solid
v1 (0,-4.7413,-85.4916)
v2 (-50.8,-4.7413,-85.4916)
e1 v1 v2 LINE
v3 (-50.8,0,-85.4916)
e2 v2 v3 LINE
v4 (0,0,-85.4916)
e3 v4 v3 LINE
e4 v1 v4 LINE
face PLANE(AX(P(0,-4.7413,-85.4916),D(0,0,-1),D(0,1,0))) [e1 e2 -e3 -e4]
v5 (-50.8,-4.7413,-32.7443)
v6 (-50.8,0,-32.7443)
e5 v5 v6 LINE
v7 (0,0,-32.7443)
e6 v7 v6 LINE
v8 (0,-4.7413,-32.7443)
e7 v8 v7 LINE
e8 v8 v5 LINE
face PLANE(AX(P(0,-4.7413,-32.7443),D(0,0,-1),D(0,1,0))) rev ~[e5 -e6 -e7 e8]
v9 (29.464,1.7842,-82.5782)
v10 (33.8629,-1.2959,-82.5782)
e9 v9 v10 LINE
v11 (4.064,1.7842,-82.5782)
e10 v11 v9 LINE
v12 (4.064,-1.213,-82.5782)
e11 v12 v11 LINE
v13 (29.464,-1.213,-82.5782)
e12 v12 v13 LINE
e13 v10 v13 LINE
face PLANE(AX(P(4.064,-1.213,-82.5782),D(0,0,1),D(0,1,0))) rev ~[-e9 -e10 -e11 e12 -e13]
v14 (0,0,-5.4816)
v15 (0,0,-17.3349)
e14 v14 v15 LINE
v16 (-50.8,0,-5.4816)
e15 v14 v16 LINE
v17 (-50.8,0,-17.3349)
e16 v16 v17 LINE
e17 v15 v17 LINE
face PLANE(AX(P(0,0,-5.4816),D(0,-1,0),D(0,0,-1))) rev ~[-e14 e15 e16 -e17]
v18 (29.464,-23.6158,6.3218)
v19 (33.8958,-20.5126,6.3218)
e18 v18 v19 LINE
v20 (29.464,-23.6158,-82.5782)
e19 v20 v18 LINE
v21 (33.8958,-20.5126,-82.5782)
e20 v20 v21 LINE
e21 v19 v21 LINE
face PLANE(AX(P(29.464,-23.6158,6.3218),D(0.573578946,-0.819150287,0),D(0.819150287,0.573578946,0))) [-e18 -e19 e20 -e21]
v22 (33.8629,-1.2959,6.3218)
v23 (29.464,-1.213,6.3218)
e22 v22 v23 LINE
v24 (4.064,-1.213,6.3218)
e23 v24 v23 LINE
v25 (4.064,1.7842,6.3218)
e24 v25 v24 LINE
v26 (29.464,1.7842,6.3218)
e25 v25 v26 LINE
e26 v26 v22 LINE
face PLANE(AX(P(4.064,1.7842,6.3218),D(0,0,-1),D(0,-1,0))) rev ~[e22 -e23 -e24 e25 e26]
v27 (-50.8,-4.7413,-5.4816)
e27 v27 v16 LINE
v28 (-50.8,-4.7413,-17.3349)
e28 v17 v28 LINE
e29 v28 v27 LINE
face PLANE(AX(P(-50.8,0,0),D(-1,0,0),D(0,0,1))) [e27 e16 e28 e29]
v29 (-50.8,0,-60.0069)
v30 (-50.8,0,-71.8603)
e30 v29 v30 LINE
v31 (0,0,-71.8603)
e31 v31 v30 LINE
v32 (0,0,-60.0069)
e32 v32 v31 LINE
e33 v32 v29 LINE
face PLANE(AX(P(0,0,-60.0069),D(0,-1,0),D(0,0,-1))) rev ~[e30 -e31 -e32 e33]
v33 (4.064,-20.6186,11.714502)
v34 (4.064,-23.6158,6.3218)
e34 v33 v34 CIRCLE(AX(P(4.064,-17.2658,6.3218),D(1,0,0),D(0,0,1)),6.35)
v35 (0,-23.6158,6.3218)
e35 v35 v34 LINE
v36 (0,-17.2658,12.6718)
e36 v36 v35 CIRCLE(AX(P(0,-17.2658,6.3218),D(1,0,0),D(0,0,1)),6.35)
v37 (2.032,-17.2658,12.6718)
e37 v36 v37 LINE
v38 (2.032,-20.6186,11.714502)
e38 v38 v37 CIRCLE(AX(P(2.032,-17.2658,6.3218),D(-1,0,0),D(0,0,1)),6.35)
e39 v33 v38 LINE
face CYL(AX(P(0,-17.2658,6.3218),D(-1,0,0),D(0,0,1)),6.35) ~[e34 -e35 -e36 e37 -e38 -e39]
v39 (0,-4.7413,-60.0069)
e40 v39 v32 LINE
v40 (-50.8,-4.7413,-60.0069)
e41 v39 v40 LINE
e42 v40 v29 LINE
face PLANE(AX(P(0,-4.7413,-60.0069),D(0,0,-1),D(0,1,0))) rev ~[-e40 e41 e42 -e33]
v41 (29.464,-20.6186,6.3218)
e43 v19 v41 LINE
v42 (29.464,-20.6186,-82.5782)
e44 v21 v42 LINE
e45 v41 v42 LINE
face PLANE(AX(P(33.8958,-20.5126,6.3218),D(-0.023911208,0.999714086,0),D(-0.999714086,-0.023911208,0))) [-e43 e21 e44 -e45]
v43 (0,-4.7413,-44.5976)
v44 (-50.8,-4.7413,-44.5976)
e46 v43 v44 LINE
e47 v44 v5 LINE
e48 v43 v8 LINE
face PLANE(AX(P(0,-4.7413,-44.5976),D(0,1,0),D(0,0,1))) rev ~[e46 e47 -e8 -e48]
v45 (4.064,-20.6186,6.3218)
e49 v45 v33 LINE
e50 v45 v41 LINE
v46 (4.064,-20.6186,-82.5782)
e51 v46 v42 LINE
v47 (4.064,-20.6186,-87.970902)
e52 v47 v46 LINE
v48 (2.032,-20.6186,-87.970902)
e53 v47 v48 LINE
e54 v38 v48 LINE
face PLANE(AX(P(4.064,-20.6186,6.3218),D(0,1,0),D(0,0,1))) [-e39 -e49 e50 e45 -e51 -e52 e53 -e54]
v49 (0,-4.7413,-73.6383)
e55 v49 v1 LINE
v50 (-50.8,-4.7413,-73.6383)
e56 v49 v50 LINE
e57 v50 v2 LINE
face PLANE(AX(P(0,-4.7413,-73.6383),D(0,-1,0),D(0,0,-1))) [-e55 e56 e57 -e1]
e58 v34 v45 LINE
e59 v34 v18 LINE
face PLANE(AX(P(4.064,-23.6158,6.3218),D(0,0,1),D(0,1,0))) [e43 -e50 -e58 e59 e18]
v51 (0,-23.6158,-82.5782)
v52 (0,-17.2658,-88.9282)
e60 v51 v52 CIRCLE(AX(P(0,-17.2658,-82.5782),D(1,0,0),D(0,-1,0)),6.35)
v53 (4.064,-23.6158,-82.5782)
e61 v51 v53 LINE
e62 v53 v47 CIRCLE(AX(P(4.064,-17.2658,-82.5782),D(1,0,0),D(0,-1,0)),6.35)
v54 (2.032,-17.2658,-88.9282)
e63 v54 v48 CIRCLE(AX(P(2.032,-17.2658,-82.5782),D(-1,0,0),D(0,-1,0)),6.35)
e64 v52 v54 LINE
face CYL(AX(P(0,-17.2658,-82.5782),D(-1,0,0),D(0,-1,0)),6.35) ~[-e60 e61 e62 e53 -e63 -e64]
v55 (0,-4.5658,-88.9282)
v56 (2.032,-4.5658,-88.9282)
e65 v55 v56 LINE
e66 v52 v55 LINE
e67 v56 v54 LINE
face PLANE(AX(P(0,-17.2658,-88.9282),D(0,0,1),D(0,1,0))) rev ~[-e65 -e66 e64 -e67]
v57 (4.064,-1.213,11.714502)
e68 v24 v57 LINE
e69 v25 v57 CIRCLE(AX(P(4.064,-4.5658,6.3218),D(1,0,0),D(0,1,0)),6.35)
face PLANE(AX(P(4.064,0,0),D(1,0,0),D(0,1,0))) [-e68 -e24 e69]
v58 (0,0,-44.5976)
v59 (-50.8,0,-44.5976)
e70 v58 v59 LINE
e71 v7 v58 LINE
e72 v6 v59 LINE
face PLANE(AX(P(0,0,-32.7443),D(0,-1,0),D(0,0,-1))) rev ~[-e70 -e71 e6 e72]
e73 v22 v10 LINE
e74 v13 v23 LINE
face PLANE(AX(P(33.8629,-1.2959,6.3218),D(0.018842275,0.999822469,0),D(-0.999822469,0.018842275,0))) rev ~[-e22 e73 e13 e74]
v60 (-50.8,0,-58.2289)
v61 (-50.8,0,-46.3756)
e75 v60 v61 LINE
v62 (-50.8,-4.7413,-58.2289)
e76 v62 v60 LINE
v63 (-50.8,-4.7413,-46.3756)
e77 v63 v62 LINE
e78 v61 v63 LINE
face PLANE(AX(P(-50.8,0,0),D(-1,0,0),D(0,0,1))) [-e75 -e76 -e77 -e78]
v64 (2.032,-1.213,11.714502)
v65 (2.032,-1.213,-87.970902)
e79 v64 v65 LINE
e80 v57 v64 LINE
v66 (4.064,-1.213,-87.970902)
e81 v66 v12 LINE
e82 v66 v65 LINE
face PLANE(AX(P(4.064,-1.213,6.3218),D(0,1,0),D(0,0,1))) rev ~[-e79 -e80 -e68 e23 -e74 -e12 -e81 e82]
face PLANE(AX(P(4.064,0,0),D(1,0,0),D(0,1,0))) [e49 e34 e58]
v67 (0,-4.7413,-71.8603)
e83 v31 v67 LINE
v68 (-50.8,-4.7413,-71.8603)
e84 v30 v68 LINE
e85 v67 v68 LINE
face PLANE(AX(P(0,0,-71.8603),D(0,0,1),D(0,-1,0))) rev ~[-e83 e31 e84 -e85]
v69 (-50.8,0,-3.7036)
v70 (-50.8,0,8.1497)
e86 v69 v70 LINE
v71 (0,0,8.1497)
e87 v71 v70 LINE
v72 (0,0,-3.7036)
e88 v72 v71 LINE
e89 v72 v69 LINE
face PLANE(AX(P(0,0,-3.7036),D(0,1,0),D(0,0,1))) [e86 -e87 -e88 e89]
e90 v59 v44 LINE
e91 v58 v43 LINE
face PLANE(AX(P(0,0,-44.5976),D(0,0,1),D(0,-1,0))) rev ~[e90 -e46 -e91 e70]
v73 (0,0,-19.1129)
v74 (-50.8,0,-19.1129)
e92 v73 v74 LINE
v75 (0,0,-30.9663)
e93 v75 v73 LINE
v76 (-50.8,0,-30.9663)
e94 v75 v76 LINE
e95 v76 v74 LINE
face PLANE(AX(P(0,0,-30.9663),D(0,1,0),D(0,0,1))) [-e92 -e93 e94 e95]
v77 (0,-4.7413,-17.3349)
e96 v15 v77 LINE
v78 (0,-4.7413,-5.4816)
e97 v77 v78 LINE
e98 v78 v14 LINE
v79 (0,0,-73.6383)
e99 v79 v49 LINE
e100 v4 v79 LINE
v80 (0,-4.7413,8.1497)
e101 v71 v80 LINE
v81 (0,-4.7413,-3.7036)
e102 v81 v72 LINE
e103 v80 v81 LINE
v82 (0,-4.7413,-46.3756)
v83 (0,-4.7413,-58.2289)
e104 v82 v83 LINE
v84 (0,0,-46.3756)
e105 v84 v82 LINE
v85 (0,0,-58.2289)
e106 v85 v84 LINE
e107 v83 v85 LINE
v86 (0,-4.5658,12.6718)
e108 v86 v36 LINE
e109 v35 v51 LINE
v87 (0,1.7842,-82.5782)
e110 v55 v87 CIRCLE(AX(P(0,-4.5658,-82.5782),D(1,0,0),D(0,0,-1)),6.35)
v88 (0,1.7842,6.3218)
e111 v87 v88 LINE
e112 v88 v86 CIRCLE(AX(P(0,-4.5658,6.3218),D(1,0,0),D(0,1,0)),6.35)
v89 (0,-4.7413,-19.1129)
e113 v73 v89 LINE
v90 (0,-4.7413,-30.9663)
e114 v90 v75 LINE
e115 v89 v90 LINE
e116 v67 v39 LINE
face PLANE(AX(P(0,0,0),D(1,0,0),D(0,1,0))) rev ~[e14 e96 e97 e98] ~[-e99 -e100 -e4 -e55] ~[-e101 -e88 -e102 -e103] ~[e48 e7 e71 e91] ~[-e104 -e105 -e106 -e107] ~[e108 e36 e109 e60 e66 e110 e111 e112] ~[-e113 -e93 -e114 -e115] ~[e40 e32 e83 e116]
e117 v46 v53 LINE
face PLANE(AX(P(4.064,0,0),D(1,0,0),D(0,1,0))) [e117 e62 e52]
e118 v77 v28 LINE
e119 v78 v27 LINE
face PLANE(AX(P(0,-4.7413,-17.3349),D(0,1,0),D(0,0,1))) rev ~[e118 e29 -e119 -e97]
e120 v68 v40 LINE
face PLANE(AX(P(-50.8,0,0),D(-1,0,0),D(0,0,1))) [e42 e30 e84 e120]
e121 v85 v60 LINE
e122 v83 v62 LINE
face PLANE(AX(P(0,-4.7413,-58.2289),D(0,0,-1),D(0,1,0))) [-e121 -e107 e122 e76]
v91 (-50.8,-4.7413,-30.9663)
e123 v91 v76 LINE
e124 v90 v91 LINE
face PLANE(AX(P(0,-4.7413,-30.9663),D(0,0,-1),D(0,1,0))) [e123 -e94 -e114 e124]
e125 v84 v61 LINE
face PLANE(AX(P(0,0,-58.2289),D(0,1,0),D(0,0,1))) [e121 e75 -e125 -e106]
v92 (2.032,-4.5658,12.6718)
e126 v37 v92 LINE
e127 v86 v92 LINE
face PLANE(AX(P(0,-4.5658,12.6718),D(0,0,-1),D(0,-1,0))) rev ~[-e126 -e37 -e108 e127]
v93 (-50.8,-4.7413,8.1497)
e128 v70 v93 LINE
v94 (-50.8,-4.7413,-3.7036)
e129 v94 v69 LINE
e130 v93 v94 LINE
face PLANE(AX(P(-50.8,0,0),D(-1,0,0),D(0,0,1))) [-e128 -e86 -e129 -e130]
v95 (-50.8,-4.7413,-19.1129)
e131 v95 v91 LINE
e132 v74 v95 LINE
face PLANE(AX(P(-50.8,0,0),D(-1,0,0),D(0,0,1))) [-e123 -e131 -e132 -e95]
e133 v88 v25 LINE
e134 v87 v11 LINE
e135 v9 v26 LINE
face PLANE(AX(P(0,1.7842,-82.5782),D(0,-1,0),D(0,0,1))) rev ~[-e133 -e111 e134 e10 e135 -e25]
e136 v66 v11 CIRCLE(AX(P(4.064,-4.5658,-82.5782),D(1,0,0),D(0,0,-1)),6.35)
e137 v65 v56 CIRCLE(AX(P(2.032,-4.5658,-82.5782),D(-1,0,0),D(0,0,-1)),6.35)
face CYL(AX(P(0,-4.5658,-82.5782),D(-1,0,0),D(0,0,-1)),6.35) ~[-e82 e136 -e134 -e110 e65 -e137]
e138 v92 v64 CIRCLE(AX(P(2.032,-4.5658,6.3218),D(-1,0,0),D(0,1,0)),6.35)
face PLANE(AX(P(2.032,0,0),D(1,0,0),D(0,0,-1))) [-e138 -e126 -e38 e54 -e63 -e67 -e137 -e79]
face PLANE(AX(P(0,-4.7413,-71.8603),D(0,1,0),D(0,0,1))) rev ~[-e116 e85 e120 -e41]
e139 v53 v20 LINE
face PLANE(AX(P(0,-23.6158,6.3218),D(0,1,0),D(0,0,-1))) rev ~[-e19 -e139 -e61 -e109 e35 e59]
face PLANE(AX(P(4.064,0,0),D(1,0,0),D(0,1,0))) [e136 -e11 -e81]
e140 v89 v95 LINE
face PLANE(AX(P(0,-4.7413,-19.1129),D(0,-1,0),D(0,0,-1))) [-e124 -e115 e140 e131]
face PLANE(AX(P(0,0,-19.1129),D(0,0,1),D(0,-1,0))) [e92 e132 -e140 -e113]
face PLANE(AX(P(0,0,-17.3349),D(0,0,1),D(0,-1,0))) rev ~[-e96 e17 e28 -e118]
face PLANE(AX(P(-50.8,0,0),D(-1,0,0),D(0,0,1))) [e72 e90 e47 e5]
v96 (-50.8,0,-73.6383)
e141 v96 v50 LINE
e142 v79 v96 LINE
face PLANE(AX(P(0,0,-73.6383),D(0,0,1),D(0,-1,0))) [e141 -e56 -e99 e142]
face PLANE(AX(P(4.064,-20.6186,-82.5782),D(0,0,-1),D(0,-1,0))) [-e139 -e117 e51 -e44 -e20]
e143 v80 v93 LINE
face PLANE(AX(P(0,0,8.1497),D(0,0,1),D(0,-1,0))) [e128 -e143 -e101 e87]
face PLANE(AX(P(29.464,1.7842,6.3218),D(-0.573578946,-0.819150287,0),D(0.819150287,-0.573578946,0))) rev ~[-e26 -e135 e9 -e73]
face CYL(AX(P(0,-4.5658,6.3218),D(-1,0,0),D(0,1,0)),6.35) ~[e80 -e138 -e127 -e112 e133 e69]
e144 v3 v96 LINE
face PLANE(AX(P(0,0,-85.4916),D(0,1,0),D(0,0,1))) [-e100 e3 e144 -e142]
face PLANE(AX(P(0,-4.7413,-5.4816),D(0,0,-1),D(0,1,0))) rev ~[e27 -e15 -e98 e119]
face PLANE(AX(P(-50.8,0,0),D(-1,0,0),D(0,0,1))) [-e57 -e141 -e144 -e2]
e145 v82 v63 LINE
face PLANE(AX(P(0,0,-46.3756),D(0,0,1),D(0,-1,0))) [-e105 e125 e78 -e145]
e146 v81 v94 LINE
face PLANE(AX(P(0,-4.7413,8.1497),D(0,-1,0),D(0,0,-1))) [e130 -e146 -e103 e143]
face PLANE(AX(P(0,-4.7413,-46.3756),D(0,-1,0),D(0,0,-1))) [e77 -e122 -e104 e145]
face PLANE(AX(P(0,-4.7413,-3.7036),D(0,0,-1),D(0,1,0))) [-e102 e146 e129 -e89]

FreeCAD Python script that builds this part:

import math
import FreeCAD as App
import Part
import Sketcher
from FreeCAD import Vector
Q = App.Units.Quantity


def add_polygon(sketch, points):
    """Adds a closed chain of lines whose ends are joined by coincident constraints."""
    first, n = sketch.GeometryCount, len(points)
    for a, b in zip(points, points[1:] + points[:1]):
        sketch.addGeometry(Part.LineSegment(App.Vector(*a, 0), App.Vector(*b, 0)), False)
    for i in range(n):
        sketch.addConstraint(Sketcher.Constraint("Coincident", first + i, 2, first + (i + 1) % n, 1))

doc = App.newDocument("Part")
body = doc.addObject("PartDesign::Body", "Body")

sketch1 = body.newObject("Sketcher::SketchObject", "Sketch")
sketch1.AttachmentSupport = (doc.getObject("YZ_Plane"), [""])
sketch1.MapMode = "FlatFace"
sketch1.addGeometry([
    Part.ArcOfCircle(Part.Circle(Vector(-4.5658, 6.3218, 0), Vector(0, 0, 1), 6.35), math.radians(0), math.radians(90)),
    Part.LineSegment(Vector(-4.5658, 12.6718, 0), Vector(-17.2658, 12.6718, 0)),
    Part.ArcOfCircle(Part.Circle(Vector(-17.2658, 6.3218, 0), Vector(0, 0, 1), 6.35), math.radians(90), math.radians(180)),
    Part.LineSegment(Vector(-23.6158, 6.3218, 0), Vector(-23.6158, -82.5782, 0)),
    Part.ArcOfCircle(Part.Circle(Vector(-17.2658, -82.5782, 0), Vector(0, 0, 1), 6.35), math.radians(180), math.radians(270)),
    Part.LineSegment(Vector(-17.2658, -88.9282, 0), Vector(-4.5658, -88.9282, 0)),
    Part.ArcOfCircle(Part.Circle(Vector(-4.5658, -82.5782, 0), Vector(0, 0, 1), 6.35), math.radians(-90), math.radians(0)),
    Part.LineSegment(Vector(1.7842, -82.5782, 0), Vector(1.7842, 6.3218, 0)),
], False)
sketch1.addConstraint([
    Sketcher.Constraint("Tangent", 0, 2, 1, 1),
    Sketcher.Constraint("Tangent", 1, 2, 2, 1),
    Sketcher.Constraint("Tangent", 2, 2, 3, 1),
    Sketcher.Constraint("Tangent", 3, 2, 4, 1),
    Sketcher.Constraint("Tangent", 4, 2, 5, 1),
    Sketcher.Constraint("Tangent", 5, 2, 6, 1),
    Sketcher.Constraint("Tangent", 6, 2, 7, 1),
    Sketcher.Constraint("Tangent", 7, 2, 0, 1),
    Sketcher.Constraint("Horizontal", 1),
    Sketcher.Constraint("Vertical", 3),
    Sketcher.Constraint("Horizontal", 5),
    Sketcher.Constraint("Vertical", 7),
    Sketcher.Constraint("Equal", 0, 2),
    Sketcher.Constraint("Equal", 2, 4),
    Sketcher.Constraint("Equal", 4, 6),
    Sketcher.Constraint("Radius", 0, Q("0.25 in")),
    Sketcher.Constraint("DistanceX", 3, 2, 6, 2, Q("1 in")),
    Sketcher.Constraint("DistanceY", 3, 2, 3, 1, Q("3.5 in")),
    Sketcher.Constraint("DistanceY", -1, 1, 0, 3, Q("0.2489 in")),
    Sketcher.Constraint("DistanceX", 0, 3, -1, 1, Q("4.5658 mm")),
])
pad1 = body.newObject("PartDesign::Pad", "Pad")
pad1.Profile = sketch1
pad1.Length = Q("0.16 in")

sketch2 = body.newObject("Sketcher::SketchObject", "Sketch001")
sketch2.AttachmentSupport = (doc.getObject("YZ_Plane"), [""])
sketch2.MapMode = "FlatFace"
sketch2.AttachmentOffset = App.Placement(Vector(0, 0, 0.16 * 25.4), App.Rotation())
add_polygon(sketch2, [(-1.213, -82.5782), (1.7842, -82.5782), (1.7842, 6.3218), (-1.213, 6.3218)])
add_polygon(sketch2, [(-20.6186, -82.5782), (-20.6186, 6.3218), (-23.6158, 6.3218), (-23.6158, -82.5782)])
sketch2.addConstraint([
    Sketcher.Constraint("Horizontal", 0),
    Sketcher.Constraint("Vertical", 1),
    Sketcher.Constraint("Horizontal", 2),
    Sketcher.Constraint("Vertical", 3),
    Sketcher.Constraint("Vertical", 4),
    Sketcher.Constraint("Horizontal", 5),
    Sketcher.Constraint("Vertical", 6),
    Sketcher.Constraint("Horizontal", 7),
    Sketcher.Constraint("Horizontal", 2, 2, 4, 2),
    Sketcher.Constraint("Horizontal", 3, 2, 6, 2),
    Sketcher.Constraint("Equal", 2, 5),
    Sketcher.Constraint("DistanceY", 1, 1, 1, 2, Q("3.5 in")),
    Sketcher.Constraint("DistanceX", 4, 2, 2, 2, Q("0.764 in")),
    Sketcher.Constraint("DistanceX", 5, 2, 1, 2, Q("1 in")),
    Sketcher.Constraint("DistanceY", 0, 2, -1, 1, Q("3.2511 in")),
    Sketcher.Constraint("DistanceX", -1, 1, 0, 2, Q("1.7842 mm")),
])
pad2 = body.newObject("PartDesign::Pad", "Pad001")
pad2.Profile = sketch2
pad2.Length = Q("1 in")

sketch3 = body.newObject("Sketcher::SketchObject", "Sketch002")
sketch3.AttachmentSupport = (doc.getObject("YZ_Plane"), [""])
sketch3.MapMode = "FlatFace"
add_polygon(sketch3, [(-4.7413, -5.4816), (0, -5.4816), (0, -17.3349), (-4.7413, -17.3349)])
add_polygon(sketch3, [(0, -19.1129), (0, -30.9663), (-4.7413, -30.9663), (-4.7413, -19.1129)])
add_polygon(sketch3, [(-4.7413, -32.7443), (0, -32.7443), (0, -44.5976), (-4.7413, -44.5976)])
add_polygon(sketch3, [(0, -58.2289), (-4.7413, -58.2289), (-4.7413, -46.3756), (0, -46.3756)])
add_polygon(sketch3, [(-4.7413, -60.0069), (0, -60.0069), (0, -71.8603), (-4.7413, -71.8603)])
add_polygon(sketch3, [(0, -73.6383), (0, -85.4916), (-4.7413, -85.4916), (-4.7413, -73.6383)])
add_polygon(sketch3, [(0, 8.1497), (0, -3.7036), (-4.7413, -3.7036), (-4.7413, 8.1497)])
sketch3.addConstraint([
    Sketcher.Constraint("Horizontal", 0),
    Sketcher.Constraint("Vertical", 1),
    Sketcher.Constraint("Horizontal", 2),
    Sketcher.Constraint("Vertical", 3),
    Sketcher.Constraint("Vertical", 4),
    Sketcher.Constraint("Horizontal", 5),
    Sketcher.Constraint("Vertical", 6),
    Sketcher.Constraint("Horizontal", 7),
    Sketcher.Constraint("Horizontal", 8),
    Sketcher.Constraint("Vertical", 9),
    Sketcher.Constraint("Horizontal", 10),
    Sketcher.Constraint("Vertical", 11),
    Sketcher.Constraint("Horizontal", 12),
    Sketcher.Constraint("Vertical", 13),
    Sketcher.Constraint("Horizontal", 14),
    Sketcher.Constraint("Vertical", 15),
    Sketcher.Constraint("Horizontal", 16),
    Sketcher.Constraint("Vertical", 17),
    Sketcher.Constraint("Horizontal", 18),
    Sketcher.Constraint("Vertical", 19),
    Sketcher.Constraint("Vertical", 20),
    Sketcher.Constraint("Horizontal", 21),
    Sketcher.Constraint("Vertical", 22),
    Sketcher.Constraint("Horizontal", 23),
    Sketcher.Constraint("Vertical", 24),
    Sketcher.Constraint("Horizontal", 25),
    Sketcher.Constraint("Vertical", 26),
    Sketcher.Constraint("Horizontal", 27),
    Sketcher.Constraint("PointOnObject", 0, 2, -2),
    Sketcher.Constraint("PointOnObject", 4, 2, -2),
    Sketcher.Constraint("PointOnObject", 8, 2, -2),
    Sketcher.Constraint("PointOnObject", 14, 2, -2),
    Sketcher.Constraint("PointOnObject", 16, 2, -2),
    Sketcher.Constraint("PointOnObject", 20, 2, -2),
    Sketcher.Constraint("PointOnObject", 24, 2, -2),
    Sketcher.Constraint("Vertical", 3, 2, 5, 2),
    Sketcher.Constraint("Vertical", 6, 2, 10, 2),
    Sketcher.Constraint("Vertical", 11, 2, 12, 2),
    Sketcher.Constraint("Vertical", 13, 2, 18, 2),
    Sketcher.Constraint("Vertical", 19, 2, 21, 2),
    Sketcher.Constraint("Vertical", 22, 2, 25, 2),
    Sketcher.Constraint("Equal", 3, 4),
    Sketcher.Constraint("Equal", 6, 9),
    Sketcher.Constraint("Equal", 11, 13),
    Sketcher.Constraint("Equal", 15, 17),
    Sketcher.Constraint("Equal", 19, 20),
    Sketcher.Constraint("Equal", 22, 24),
    Sketcher.Constraint("DistanceY", 6, 2, 2, 2, Q("0.07 in")),
    Sketcher.Constraint("DistanceY", 8, 2, 4, 2, Q("0.07 in")),
    Sketcher.Constraint("DistanceY", 13, 2, 10, 2, Q("0.07 in")),
    Sketcher.Constraint("DistanceY", 16, 2, 15, 2, Q("0.07 in")),
    Sketcher.Constraint("DistanceY", 22, 2, 18, 2, Q("0.07 in")),
    Sketcher.Constraint("DistanceY", 0, 2, 24, 2, Q("0.07 in")),
    Sketcher.Constraint("DistanceX", 0, 1, 0, 2, Q("4.7413 mm")),
    Sketcher.Constraint("DistanceY", 1, 2, 1, 1, Q("11.8533 mm")),
    Sketcher.Constraint("DistanceY", 0, 2, -1, 1, Q("0.2158 in")),
])
pad3 = body.newObject("PartDesign::Pad", "Pad002")
pad3.Profile = sketch3
pad3.Length = Q("2 in")
pad3.Reversed = True

sketch4 = body.newObject("Sketcher::SketchObject", "Sketch003")
sketch4.AttachmentSupport = (doc.getObject("XY_Plane"), [""])
sketch4.MapMode = "FlatFace"
sketch4.AttachmentOffset = App.Placement(Vector(0, 0, 0.2488898 * 25.4), App.Rotation())
add_polygon(sketch4, [(33.86287, -1.295942), (29.464, 1.7842), (29.464, -1.213)])
add_polygon(sketch4, [(33.8958, -20.5126), (29.464, -20.6186), (29.464, -23.6158)])
sketch4.addConstraint([
    Sketcher.Constraint("Vertical", 1),
    Sketcher.Constraint("Vertical", 4),
    Sketcher.Constraint("Vertical", 1, 2, 3, 2),
    Sketcher.Constraint("Equal", 1, 4),
    Sketcher.Constraint("Distance", 5, Q("0.213 in")),
    Sketcher.Constraint("Angle", 0, Q("144.9998 deg")),
    Sketcher.Constraint("Angle", 5, Q("35.0002 deg")),
    Sketcher.Constraint("DistanceY", 4, 2, 0, 2, Q("1 in")),
    Sketcher.Constraint("DistanceY", 1, 2, 1, 1, Q("0.118 in")),
    Sketcher.Constraint("DistanceX", -1, 1, 0, 2, Q("1.16 in")),
    Sketcher.Constraint("Angle", 2, Q("-1.0796 deg")),
    Sketcher.Constraint("DistanceY", -1, 1, 0, 2, Q("1.7842 mm")),
])
pad4 = body.newObject("PartDesign::Pad", "Pad003")
pad4.Profile = sketch4
pad4.Length = Q("3.5 in")
pad4.Reversed = True

sketch5 = body.newObject("Sketcher::SketchObject", "Sketch004")
sketch5.AttachmentSupport = (doc.getObject("YZ_Plane"), [""])
sketch5.MapMode = "FlatFace"
sketch5.AttachmentOffset = App.Placement(Vector(0, 0, 0.16 * 25.4), App.Rotation())
add_polygon(sketch5, [(-20.6186, -88.9282), (-1.213, -88.9282), (-1.213, 12.6718), (-20.6186, 12.6718)])
sketch5.addConstraint([
    Sketcher.Constraint("Horizontal", 0),
    Sketcher.Constraint("Vertical", 1),
    Sketcher.Constraint("Horizontal", 2),
    Sketcher.Constraint("Vertical", 3),
    Sketcher.Constraint("DistanceY", 1, 1, 1, 2, Q("4 in")),
    Sketcher.Constraint("DistanceX", 0, 1, 0, 2, Q("0.764 in")),
    Sketcher.Constraint("DistanceY", 0, 2, -1, 1, Q("3.5011 in")),
    Sketcher.Constraint("DistanceX", 0, 2, -1, 1, Q("1.213 mm")),
])
pocket1 = body.newObject("PartDesign::Pocket", "Pocket")
pocket1.Profile = sketch5
pocket1.Length = Q("0.08 in")

doc.recompute()
